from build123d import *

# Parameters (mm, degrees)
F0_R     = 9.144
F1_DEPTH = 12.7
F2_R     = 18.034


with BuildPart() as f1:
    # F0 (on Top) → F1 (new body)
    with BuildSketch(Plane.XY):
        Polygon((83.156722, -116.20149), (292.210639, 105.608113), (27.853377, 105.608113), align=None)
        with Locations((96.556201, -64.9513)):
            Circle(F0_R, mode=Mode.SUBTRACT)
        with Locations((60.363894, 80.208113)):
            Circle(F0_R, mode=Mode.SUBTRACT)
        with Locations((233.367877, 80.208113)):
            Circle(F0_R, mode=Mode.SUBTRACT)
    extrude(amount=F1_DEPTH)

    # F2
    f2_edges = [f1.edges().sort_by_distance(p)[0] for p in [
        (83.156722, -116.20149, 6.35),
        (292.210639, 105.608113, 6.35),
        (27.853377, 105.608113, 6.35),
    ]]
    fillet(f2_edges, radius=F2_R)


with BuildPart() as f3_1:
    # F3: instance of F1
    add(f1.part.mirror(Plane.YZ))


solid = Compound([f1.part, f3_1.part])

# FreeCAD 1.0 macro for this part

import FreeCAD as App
import Part
import Sketcher
Q = App.Units.Quantity


def edges_at(feature, points):
    """Names of the edges that pass closest to the given points."""
    edges = feature.Shape.Edges
    near = lambda p: min(range(len(edges)), key=lambda i: edges[i].distToShape(Part.Vertex(*p))[0])
    return sorted({f"Edge{near(p) + 1}" for p in points})


def add_polygon(sketch, points):
    """Adds a closed chain of lines whose ends are joined by coincident constraints."""
    first, n = sketch.GeometryCount, len(points)
    for a, b in zip(points, points[1:] + points[:1]):
        sketch.addGeometry(Part.LineSegment(App.Vector(*a, 0), App.Vector(*b, 0)), False)
    for i in range(n):
        sketch.addConstraint(Sketcher.Constraint("Coincident", first + i, 2, first + (i + 1) % n, 1))

doc = App.newDocument("Part")
body = doc.addObject("PartDesign::Body", "Body")

# Sketch on XY plane
sketch1 = doc.addObject("Sketcher::SketchObject", "Sketch")
body.addObject(sketch1)
sketch1.AttachmentSupport = (doc.XY_Plane, [""])
sketch1.MapMode = "FlatFace"
add_polygon(sketch1, [(83.156722, -116.20149), (292.210639, 105.608113), (27.853377, 105.608113)])  # lines 0-2
sketch1.addGeometry(Part.Circle(App.Vector(96.556201, -64.9513, 0), App.Vector(0, 0, 1), 9.144), False)  # 3
sketch1.addGeometry(Part.Circle(App.Vector(60.363894, 80.208113, 0), App.Vector(0, 0, 1), 9.144), False)  # 4
sketch1.addGeometry(Part.Circle(App.Vector(233.367877, 80.208113, 0), App.Vector(0, 0, 1), 9.144), False)  # 5
sketch1.addConstraint([
    Sketcher.Constraint("Horizontal", 1),
    Sketcher.Constraint("Equal", 3, 4),
    Sketcher.Constraint("Equal", 4, 5),
    Sketcher.Constraint("Horizontal", 4, 3, 5, 3),
    Sketcher.Constraint("Diameter", 3, Q("0.72 in")),
    Sketcher.Constraint("Distance", 0, Q("12 in")),
    Sketcher.Constraint("Distance", 2, Q("9 in")),
    Sketcher.Constraint("Angle", 2, Q("-76 deg")),
    Sketcher.Constraint("DistanceY", 5, 3, 0, 2, Q("1 in")),
    Sketcher.Constraint("DistanceX", -1, 1, 3, 3, 96.556201),
    Sketcher.Constraint("DistanceY", 3, 3, -1, 1, 64.9513),
    Sketcher.Constraint("DistanceX", 1, 2, 5, 3, 205.5145),
    Sketcher.Constraint("DistanceX", -1, 1, 0, 2, 292.210639),
    Sketcher.Constraint("DistanceY", 2, 2, -1, 1, 116.20149),
    Sketcher.Constraint("DistanceX", 4, 3, 2, 2, 22.792828),
])
pad1 = doc.addObject("PartDesign::Pad", "Pad")
body.addObject(pad1)
pad1.Profile = sketch1
pad1.Length = Q("0.5 in")
doc.recompute()

fillet = doc.addObject("PartDesign::Fillet", "Fillet")
body.addObject(fillet)
fillet.Base = (pad1, edges_at(pad1, [(83.157, -116.201, 6.35), (292.211, 105.608, 6.35), (27.853, 105.608, 6.35)]))
fillet.Radius = Q("0.71 in")
body2 = doc.addObject("PartDesign::Body", "Body001")
doc.recompute()

mirroring = doc.addObject("Part::Mirroring", "Mirroring")
mirroring.Source = body
mirroring.Base = App.Vector(0, 0, 0)
mirroring.Normal = App.Vector(1, 0, 0)
body2.BaseFeature = mirroring
doc.recompute()
mirroring.Visibility = False

doc.recompute()
